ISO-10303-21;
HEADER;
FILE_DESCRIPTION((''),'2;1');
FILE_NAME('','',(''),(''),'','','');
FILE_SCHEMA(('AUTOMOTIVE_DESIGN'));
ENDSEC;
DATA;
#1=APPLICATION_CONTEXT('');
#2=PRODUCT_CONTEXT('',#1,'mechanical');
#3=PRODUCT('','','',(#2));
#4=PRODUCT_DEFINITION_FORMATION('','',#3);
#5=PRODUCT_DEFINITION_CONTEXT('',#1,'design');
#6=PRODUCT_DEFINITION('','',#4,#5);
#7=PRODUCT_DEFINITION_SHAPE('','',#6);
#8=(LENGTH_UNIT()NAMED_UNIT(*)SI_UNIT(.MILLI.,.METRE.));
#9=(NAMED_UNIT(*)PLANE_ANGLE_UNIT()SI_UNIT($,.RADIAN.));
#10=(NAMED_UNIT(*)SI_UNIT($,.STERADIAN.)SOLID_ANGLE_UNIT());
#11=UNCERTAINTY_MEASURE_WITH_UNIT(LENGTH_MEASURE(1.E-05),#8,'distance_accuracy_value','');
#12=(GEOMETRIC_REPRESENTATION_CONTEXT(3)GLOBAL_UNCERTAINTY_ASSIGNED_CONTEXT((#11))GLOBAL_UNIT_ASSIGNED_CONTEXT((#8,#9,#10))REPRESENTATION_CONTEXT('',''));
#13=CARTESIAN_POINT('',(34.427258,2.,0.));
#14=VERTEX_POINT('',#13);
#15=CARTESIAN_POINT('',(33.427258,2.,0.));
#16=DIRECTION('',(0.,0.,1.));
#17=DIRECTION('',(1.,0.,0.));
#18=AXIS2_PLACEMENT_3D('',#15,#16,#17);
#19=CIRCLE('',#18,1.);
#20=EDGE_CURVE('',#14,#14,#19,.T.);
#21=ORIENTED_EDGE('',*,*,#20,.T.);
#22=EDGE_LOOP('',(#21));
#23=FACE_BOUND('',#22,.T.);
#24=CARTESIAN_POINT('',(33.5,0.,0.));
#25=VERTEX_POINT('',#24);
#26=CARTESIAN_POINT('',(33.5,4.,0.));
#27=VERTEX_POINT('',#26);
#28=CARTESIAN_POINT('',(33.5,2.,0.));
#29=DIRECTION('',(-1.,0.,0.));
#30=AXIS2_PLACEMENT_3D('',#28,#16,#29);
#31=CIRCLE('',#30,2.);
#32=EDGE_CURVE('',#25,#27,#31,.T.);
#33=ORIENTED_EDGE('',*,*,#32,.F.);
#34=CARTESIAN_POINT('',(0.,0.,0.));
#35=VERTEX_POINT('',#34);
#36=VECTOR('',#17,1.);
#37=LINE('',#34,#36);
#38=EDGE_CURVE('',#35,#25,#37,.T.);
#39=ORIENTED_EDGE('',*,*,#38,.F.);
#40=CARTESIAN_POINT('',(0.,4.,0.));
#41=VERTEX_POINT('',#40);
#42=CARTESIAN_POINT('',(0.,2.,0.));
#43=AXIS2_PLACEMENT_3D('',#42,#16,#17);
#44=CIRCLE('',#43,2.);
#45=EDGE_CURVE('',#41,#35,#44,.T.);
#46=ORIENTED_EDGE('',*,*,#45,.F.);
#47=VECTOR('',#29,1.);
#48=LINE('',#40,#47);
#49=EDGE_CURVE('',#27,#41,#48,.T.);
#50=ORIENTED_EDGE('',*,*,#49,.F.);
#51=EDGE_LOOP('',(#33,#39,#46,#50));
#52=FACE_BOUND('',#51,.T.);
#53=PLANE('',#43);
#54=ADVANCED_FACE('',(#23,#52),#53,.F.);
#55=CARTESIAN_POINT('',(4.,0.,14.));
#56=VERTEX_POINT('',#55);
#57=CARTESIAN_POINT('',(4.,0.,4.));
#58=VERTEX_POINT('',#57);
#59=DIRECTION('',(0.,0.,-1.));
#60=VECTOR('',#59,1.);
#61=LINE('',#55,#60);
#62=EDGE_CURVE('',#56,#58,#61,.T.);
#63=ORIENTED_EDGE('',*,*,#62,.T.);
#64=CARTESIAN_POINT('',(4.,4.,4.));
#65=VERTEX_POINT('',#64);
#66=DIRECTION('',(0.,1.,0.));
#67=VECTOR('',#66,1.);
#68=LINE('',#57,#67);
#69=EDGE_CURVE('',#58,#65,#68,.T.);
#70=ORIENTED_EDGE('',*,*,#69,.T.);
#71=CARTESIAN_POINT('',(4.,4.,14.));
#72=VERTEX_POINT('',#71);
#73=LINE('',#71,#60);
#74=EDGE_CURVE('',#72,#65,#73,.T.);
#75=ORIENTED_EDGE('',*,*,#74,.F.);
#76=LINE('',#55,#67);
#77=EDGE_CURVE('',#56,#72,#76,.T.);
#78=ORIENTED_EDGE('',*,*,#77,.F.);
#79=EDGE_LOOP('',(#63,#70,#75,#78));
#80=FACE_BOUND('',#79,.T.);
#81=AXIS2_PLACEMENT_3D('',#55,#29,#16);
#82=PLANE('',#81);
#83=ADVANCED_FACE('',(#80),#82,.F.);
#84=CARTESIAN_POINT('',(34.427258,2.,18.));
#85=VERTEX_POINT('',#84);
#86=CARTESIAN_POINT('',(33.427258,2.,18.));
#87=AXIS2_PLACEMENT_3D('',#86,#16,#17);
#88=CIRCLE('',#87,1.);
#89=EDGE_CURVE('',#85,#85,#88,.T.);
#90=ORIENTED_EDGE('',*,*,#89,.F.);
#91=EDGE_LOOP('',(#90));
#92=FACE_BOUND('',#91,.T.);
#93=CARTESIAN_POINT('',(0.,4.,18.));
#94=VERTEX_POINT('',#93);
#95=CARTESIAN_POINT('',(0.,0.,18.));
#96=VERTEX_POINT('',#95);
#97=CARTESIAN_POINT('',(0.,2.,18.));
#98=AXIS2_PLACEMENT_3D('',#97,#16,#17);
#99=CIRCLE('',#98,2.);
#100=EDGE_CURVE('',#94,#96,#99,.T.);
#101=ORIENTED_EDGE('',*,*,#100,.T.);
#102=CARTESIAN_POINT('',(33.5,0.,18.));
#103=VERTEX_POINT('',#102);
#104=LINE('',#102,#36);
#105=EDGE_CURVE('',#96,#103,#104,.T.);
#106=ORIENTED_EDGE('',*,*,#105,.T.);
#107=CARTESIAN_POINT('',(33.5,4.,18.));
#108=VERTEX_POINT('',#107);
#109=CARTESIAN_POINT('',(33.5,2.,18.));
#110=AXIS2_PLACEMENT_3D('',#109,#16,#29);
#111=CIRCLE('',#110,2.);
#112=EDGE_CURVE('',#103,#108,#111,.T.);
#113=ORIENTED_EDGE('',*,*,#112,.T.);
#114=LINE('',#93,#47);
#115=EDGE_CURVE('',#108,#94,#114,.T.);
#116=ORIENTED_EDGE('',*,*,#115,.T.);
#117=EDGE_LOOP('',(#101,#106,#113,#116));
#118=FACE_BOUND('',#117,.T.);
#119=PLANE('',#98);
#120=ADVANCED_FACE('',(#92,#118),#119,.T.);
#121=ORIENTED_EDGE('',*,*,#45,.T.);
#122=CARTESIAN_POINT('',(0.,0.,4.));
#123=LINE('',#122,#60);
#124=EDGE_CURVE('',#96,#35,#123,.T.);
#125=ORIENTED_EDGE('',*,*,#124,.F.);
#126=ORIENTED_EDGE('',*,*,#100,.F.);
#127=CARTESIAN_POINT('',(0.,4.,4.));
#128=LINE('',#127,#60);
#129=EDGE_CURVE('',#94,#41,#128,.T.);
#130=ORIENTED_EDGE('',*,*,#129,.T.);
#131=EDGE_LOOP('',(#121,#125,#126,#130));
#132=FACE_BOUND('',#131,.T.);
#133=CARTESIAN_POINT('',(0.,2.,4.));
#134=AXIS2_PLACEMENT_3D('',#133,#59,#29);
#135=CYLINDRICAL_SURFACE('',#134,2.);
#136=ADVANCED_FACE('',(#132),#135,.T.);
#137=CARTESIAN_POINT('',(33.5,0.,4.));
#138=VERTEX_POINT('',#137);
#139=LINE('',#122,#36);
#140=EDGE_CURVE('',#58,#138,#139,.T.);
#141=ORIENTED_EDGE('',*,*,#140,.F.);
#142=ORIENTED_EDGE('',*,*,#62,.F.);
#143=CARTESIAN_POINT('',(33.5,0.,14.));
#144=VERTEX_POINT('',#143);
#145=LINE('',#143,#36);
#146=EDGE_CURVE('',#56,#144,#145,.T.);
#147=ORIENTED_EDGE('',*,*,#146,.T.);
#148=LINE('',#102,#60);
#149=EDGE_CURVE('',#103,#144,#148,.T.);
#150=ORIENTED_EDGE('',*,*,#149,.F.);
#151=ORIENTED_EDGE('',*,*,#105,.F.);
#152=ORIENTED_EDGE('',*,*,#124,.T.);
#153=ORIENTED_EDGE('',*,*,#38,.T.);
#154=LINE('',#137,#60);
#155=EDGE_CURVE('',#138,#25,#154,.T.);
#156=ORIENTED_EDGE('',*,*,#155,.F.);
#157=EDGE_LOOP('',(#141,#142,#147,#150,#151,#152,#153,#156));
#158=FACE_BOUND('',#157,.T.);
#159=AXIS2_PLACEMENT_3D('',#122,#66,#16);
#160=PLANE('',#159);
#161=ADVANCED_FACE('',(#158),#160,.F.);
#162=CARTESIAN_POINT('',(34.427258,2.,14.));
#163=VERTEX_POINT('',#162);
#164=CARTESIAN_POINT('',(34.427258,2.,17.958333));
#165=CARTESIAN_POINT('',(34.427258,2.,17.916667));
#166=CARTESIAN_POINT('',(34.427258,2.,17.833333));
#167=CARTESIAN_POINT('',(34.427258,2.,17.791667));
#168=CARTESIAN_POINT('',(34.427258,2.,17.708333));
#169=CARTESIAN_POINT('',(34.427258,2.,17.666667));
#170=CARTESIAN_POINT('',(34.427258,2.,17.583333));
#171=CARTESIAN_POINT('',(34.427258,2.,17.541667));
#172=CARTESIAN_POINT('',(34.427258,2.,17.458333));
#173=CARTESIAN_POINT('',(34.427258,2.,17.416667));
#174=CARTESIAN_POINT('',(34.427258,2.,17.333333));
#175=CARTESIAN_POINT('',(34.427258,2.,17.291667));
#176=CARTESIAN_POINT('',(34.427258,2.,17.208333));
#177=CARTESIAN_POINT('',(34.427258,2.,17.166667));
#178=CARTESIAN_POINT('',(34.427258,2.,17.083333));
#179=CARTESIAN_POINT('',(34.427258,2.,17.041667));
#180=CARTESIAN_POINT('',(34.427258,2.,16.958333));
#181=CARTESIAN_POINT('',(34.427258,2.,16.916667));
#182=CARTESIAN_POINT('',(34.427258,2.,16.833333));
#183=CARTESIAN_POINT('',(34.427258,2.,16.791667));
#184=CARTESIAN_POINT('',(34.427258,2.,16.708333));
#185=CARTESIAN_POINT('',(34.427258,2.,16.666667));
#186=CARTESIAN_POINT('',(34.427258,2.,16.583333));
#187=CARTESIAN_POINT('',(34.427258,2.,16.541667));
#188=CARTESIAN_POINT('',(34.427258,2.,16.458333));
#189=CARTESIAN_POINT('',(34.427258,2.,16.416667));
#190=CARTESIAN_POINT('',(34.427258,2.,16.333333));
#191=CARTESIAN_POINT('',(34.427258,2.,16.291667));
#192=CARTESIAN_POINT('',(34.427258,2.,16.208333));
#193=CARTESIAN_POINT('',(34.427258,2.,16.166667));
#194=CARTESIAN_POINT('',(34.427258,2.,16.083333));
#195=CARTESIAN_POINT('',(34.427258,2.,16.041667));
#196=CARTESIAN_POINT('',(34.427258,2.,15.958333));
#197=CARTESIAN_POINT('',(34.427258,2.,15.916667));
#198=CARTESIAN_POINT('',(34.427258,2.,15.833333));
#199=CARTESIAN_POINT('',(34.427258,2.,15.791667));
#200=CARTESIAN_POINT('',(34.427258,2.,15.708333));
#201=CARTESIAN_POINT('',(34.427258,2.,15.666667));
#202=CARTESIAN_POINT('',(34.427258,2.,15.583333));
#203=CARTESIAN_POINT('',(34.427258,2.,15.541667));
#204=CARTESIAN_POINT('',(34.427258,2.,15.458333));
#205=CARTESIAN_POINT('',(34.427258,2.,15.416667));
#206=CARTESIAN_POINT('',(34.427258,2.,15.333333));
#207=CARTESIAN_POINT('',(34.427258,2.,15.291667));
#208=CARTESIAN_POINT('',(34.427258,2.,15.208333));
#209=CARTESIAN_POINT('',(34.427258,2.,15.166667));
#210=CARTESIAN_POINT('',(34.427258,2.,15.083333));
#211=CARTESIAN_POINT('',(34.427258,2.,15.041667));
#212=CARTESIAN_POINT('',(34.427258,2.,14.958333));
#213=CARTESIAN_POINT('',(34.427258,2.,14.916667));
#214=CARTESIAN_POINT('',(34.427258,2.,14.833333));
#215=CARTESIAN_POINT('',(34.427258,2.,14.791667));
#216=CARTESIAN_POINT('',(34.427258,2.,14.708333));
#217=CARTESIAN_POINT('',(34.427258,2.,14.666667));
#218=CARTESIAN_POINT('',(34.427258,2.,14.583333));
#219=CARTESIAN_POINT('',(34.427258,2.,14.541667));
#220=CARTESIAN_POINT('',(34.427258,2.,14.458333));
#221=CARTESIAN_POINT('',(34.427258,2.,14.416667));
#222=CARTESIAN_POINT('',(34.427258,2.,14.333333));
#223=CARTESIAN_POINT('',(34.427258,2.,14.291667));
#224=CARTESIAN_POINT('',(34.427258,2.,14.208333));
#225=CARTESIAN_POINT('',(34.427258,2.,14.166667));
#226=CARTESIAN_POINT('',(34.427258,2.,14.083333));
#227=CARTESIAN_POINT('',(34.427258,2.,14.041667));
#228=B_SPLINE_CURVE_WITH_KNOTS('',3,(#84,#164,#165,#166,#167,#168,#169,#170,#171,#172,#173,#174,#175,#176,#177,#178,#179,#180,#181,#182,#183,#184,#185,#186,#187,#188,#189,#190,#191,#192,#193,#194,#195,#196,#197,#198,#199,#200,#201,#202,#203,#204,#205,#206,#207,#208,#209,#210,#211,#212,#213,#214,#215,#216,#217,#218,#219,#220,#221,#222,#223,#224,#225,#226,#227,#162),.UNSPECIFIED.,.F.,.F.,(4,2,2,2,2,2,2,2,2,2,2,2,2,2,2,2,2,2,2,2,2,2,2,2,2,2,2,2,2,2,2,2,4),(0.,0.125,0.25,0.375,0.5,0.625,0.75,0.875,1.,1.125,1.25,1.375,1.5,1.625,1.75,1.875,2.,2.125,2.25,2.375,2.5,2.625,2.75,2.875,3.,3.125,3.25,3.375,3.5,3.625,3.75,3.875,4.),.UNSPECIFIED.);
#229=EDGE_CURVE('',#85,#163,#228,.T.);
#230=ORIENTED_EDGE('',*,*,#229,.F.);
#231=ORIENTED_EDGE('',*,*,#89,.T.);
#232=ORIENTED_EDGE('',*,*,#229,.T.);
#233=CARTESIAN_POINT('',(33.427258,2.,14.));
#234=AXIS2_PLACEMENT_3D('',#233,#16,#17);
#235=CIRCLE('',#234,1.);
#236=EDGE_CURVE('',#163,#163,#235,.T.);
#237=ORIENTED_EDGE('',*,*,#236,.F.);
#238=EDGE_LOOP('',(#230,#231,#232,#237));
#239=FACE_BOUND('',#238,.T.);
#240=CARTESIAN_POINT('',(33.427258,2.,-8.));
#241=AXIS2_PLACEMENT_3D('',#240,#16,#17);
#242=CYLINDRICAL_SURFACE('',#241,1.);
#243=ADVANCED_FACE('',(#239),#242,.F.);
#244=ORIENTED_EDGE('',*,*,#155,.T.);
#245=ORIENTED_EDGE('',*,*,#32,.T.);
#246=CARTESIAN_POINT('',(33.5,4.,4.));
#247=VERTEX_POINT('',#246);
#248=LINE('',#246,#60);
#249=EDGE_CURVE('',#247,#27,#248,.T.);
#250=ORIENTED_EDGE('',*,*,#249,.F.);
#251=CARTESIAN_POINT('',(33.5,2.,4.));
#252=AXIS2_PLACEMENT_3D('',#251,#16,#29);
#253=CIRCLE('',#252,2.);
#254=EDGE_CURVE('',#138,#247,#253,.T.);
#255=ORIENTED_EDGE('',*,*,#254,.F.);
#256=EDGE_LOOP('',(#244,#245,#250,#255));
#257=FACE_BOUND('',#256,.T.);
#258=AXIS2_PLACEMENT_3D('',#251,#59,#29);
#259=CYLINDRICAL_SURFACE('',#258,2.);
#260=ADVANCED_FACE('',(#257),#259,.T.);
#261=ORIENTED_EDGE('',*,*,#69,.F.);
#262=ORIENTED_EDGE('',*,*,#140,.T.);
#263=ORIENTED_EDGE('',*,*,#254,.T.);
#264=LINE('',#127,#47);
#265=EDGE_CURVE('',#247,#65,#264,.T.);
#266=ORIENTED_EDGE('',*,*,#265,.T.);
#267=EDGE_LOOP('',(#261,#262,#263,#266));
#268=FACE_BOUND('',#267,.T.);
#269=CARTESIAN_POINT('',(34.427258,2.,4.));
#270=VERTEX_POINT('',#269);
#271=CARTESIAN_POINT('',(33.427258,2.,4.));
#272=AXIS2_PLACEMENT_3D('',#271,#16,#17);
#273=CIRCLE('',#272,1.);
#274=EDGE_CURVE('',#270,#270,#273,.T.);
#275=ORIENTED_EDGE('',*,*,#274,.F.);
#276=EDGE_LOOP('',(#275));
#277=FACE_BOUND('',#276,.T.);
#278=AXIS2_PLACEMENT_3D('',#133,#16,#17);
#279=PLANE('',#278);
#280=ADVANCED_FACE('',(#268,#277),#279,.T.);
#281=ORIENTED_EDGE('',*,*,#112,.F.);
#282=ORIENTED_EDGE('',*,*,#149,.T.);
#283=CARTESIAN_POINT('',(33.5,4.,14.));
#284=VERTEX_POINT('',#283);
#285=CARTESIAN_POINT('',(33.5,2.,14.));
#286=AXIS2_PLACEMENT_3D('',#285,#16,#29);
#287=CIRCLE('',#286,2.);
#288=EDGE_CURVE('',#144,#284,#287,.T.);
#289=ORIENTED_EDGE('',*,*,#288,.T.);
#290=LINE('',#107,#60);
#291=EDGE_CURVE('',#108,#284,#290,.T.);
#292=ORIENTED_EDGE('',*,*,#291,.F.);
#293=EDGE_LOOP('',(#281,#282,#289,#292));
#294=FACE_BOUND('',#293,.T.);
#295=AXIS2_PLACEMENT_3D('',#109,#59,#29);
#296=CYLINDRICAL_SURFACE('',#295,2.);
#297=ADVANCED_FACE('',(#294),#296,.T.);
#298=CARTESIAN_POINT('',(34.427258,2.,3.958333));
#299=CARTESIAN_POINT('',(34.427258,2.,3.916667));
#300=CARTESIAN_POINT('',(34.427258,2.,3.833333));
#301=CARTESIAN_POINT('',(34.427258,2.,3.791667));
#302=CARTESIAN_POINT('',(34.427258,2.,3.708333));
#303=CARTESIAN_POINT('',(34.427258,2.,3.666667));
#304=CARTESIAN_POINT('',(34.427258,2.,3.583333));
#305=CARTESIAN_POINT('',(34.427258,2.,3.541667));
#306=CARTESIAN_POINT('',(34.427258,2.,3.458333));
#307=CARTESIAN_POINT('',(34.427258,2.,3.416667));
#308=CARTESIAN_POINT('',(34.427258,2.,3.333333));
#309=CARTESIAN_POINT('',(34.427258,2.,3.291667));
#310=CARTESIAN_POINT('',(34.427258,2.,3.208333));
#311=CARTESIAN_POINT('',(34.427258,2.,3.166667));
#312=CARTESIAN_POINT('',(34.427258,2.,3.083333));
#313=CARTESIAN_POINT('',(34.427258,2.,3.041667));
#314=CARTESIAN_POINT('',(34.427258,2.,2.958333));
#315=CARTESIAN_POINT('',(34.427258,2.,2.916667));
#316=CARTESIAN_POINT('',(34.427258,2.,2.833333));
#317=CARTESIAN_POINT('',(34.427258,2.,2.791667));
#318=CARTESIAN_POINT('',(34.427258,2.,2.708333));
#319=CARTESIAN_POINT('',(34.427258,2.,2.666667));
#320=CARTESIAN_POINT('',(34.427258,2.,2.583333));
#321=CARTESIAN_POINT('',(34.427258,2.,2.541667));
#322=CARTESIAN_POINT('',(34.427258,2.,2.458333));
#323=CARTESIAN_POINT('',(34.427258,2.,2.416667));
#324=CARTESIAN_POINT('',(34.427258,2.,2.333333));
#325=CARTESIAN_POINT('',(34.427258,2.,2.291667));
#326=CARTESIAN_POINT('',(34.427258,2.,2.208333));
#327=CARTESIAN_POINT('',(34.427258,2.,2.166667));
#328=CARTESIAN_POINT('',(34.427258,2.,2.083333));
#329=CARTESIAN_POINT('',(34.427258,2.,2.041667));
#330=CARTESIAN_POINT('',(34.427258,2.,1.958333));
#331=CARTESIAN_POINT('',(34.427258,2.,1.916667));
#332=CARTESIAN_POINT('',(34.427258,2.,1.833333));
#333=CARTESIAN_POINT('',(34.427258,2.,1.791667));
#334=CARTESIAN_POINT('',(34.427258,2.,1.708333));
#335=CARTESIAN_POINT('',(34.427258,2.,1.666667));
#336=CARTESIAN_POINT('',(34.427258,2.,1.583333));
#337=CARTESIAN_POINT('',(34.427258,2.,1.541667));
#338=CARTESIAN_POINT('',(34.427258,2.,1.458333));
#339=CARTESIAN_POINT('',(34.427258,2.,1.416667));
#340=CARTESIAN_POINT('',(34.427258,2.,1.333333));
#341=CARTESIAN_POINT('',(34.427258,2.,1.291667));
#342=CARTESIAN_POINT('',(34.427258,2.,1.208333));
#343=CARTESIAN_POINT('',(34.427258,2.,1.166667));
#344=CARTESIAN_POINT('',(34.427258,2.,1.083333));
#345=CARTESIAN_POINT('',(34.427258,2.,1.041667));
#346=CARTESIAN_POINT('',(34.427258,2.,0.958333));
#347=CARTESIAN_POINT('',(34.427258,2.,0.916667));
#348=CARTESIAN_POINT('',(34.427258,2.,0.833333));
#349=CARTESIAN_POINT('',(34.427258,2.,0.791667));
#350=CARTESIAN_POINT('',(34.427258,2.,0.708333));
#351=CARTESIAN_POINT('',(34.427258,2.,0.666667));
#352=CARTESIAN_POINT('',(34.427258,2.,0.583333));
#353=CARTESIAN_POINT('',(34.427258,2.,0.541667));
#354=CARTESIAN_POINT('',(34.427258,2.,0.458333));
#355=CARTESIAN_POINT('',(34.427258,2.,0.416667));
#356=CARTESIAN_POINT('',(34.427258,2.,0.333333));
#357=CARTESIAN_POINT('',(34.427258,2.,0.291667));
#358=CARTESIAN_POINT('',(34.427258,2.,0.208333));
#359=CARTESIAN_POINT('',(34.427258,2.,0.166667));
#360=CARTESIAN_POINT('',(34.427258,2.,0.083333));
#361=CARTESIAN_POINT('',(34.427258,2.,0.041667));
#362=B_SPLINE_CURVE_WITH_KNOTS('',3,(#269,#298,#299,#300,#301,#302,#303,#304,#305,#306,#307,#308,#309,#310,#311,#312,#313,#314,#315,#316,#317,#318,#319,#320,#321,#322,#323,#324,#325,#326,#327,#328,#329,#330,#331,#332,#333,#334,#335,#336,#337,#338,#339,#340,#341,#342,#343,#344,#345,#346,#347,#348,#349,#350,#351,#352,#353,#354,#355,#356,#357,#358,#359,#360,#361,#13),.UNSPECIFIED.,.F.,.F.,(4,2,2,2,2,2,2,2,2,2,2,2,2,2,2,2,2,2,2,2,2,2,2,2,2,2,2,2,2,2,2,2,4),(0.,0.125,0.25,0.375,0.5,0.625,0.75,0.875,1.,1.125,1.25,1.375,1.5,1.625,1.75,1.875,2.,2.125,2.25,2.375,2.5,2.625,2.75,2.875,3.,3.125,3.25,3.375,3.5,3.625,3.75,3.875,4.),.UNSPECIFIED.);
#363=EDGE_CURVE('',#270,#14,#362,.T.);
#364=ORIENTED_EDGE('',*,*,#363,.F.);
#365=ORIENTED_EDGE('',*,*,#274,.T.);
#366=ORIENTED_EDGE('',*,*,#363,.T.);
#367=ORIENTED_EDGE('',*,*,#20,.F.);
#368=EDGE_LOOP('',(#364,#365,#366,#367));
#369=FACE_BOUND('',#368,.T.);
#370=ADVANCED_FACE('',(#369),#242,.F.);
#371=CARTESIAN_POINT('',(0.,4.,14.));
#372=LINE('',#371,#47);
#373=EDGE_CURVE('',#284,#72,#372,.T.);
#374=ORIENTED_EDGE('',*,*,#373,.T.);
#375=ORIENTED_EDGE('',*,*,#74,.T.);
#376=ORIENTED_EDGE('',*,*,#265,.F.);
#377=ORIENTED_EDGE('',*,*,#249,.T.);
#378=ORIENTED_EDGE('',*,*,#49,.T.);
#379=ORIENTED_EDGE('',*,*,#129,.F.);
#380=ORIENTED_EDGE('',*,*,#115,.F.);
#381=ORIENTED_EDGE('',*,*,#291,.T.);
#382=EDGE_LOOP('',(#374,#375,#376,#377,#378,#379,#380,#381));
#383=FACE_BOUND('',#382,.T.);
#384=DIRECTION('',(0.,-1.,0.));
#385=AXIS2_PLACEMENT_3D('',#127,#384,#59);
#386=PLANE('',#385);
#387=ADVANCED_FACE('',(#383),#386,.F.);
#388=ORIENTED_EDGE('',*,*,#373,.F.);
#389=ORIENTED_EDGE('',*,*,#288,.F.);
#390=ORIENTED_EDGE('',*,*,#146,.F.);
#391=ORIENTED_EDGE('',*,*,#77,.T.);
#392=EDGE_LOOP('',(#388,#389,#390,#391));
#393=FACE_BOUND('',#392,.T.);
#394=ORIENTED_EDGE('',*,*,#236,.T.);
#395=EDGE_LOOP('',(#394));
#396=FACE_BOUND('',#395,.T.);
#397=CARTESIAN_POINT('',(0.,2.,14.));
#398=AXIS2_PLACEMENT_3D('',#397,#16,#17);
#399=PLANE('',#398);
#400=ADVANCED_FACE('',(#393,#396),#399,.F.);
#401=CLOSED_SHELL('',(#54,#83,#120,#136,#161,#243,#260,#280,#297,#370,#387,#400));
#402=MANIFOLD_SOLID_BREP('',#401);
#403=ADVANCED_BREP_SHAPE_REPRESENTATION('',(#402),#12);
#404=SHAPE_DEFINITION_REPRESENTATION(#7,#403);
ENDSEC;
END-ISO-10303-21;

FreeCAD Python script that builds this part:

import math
import FreeCAD as App
import Part
import Sketcher
from FreeCAD import Vector
Q = App.Units.Quantity

doc = App.newDocument("Part")
body = doc.addObject("PartDesign::Body", "Body")

# Sketch on XY plane
sketch1 = body.newObject("Sketcher::SketchObject", "Sketch")
sketch1.AttachmentSupport = (doc.getObject("XY_Plane"), [""])
sketch1.MapMode = "FlatFace"
sketch1.addGeometry(Part.LineSegment(Vector(0, 0, 0), Vector(33.5, 0, 0)), False)
sketch1.addGeometry(Part.ArcOfCircle(Part.Circle(Vector(33.5, 2, 0), Vector(0, 0, 1), 2), math.radians(-90), math.radians(90)), False)
sketch1.addGeometry(Part.LineSegment(Vector(33.5, 4, 0), Vector(0, 4, 0)), False)
sketch1.addGeometry(Part.ArcOfCircle(Part.Circle(Vector(0, 2, 0), Vector(0, 0, 1), 2), math.radians(90), math.radians(270)), False)
sketch1.addConstraint(Sketcher.Constraint("Tangent", 0, 2, 1, 1))
sketch1.addConstraint(Sketcher.Constraint("Tangent", 1, 2, 2, 1))
sketch1.addConstraint(Sketcher.Constraint("Tangent", 2, 2, 3, 1))
sketch1.addConstraint(Sketcher.Constraint("Tangent", 3, 2, 0, 1))
sketch1.addConstraint(Sketcher.Constraint("Horizontal", 0))
sketch1.addConstraint(Sketcher.Constraint("Horizontal", 2))
sketch1.addConstraint(Sketcher.Constraint("Coincident", 3, 2, -1, 1))
sketch1.addConstraint(Sketcher.Constraint("Radius", 1, Q("2 mm")))
sketch1.addConstraint(Sketcher.Constraint("DistanceX", 0, 1, 0, 2, Q("33.5 mm")))
pad1 = body.newObject("PartDesign::Pad", "Pad")
pad1.Profile = sketch1
pad1.Length = 4

# Sketch on XY plane
sketch2 = body.newObject("Sketcher::SketchObject", "Sketch001")
sketch2.AttachmentSupport = (doc.getObject("XY_Plane"), [""])
sketch2.MapMode = "FlatFace"
sketch2.AttachmentOffset = App.Placement(Vector(0, 0, 4), App.Rotation())
sketch2.addGeometry(Part.LineSegment(Vector(0, 0, 0), Vector(4, 0, 0)), False)
sketch2.addGeometry(Part.LineSegment(Vector(4, 0, 0), Vector(4, 4, 0)), False)
sketch2.addGeometry(Part.LineSegment(Vector(4, 4, 0), Vector(0, 4, 0)), False)
sketch2.addGeometry(Part.ArcOfCircle(Part.Circle(Vector(0, 2, 0), Vector(0, 0, 1), 2), math.radians(90), math.radians(270)), False)
sketch2.addConstraint(Sketcher.Constraint("Coincident", 0, 2, 1, 1))
sketch2.addConstraint(Sketcher.Constraint("Coincident", 1, 2, 2, 1))
sketch2.addConstraint(Sketcher.Constraint("Tangent", 2, 2, 3, 1))
sketch2.addConstraint(Sketcher.Constraint("Tangent", 3, 2, 0, 1))
sketch2.addConstraint(Sketcher.Constraint("Horizontal", 0))
sketch2.addConstraint(Sketcher.Constraint("Vertical", 1))
sketch2.addConstraint(Sketcher.Constraint("Horizontal", 2))
sketch2.addConstraint(Sketcher.Constraint("Coincident", 3, 2, -1, 1))
sketch2.addConstraint(Sketcher.Constraint("Equal", 2, 1))
sketch2.addConstraint(Sketcher.Constraint("Radius", 3, Q("2 mm")))
pad2 = body.newObject("PartDesign::Pad", "Pad001")
pad2.Profile = sketch2
pad2.Length = 10

# Sketch on XY plane
sketch3 = body.newObject("Sketcher::SketchObject", "Sketch002")
sketch3.AttachmentSupport = (doc.getObject("XY_Plane"), [""])
sketch3.MapMode = "FlatFace"
sketch3.AttachmentOffset = App.Placement(Vector(0, 0, 14), App.Rotation())
sketch3.addGeometry(Part.LineSegment(Vector(33.5, 4, 0), Vector(0, 4, 0)), False)
sketch3.addGeometry(Part.ArcOfCircle(Part.Circle(Vector(0, 2, 0), Vector(0, 0, 1), 2), math.radians(90), math.radians(270)), False)
sketch3.addGeometry(Part.LineSegment(Vector(0, 0, 0), Vector(33.5, 0, 0)), False)
sketch3.addGeometry(Part.ArcOfCircle(Part.Circle(Vector(33.5, 2, 0), Vector(0, 0, 1), 2), math.radians(-90), math.radians(90)), False)
sketch3.addConstraint(Sketcher.Constraint("Tangent", 0, 2, 1, 1))
sketch3.addConstraint(Sketcher.Constraint("Tangent", 1, 2, 2, 1))
sketch3.addConstraint(Sketcher.Constraint("Tangent", 2, 2, 3, 1))
sketch3.addConstraint(Sketcher.Constraint("Tangent", 3, 2, 0, 1))
sketch3.addConstraint(Sketcher.Constraint("Horizontal", 0))
sketch3.addConstraint(Sketcher.Constraint("Horizontal", 2))
sketch3.addConstraint(Sketcher.Constraint("Coincident", 1, 2, -1, 1))
sketch3.addConstraint(Sketcher.Constraint("Radius", 1, Q("2 mm")))
sketch3.addConstraint(Sketcher.Constraint("DistanceX", 0, 2, 0, 1, Q("33.5 mm")))
pad3 = body.newObject("PartDesign::Pad", "Pad002")
pad3.Profile = sketch3
pad3.Length = 4

# Sketch on XY plane
sketch4 = body.newObject("Sketcher::SketchObject", "Sketch003")
sketch4.AttachmentSupport = (doc.getObject("XY_Plane"), [""])
sketch4.MapMode = "FlatFace"
sketch4.AttachmentOffset = App.Placement(Vector(0, 0, 18), App.Rotation())
sketch4.addGeometry(Part.Circle(Vector(33.4, 2, 0), Vector(0, 0, 1), 1), False)
sketch4.addConstraint(Sketcher.Constraint("Diameter", 0, Q("2 mm")))
sketch4.addConstraint(Sketcher.Constraint("DistanceY", -1, 1, 0, 3, Q("2 mm")))
sketch4.addConstraint(Sketcher.Constraint("DistanceX", -1, 1, 0, 3, Q("33.427258 mm")))
pocket1 = body.newObject("PartDesign::Pocket", "Pocket")
pocket1.Profile = sketch4
pocket1.Length = 26

doc.recompute()
